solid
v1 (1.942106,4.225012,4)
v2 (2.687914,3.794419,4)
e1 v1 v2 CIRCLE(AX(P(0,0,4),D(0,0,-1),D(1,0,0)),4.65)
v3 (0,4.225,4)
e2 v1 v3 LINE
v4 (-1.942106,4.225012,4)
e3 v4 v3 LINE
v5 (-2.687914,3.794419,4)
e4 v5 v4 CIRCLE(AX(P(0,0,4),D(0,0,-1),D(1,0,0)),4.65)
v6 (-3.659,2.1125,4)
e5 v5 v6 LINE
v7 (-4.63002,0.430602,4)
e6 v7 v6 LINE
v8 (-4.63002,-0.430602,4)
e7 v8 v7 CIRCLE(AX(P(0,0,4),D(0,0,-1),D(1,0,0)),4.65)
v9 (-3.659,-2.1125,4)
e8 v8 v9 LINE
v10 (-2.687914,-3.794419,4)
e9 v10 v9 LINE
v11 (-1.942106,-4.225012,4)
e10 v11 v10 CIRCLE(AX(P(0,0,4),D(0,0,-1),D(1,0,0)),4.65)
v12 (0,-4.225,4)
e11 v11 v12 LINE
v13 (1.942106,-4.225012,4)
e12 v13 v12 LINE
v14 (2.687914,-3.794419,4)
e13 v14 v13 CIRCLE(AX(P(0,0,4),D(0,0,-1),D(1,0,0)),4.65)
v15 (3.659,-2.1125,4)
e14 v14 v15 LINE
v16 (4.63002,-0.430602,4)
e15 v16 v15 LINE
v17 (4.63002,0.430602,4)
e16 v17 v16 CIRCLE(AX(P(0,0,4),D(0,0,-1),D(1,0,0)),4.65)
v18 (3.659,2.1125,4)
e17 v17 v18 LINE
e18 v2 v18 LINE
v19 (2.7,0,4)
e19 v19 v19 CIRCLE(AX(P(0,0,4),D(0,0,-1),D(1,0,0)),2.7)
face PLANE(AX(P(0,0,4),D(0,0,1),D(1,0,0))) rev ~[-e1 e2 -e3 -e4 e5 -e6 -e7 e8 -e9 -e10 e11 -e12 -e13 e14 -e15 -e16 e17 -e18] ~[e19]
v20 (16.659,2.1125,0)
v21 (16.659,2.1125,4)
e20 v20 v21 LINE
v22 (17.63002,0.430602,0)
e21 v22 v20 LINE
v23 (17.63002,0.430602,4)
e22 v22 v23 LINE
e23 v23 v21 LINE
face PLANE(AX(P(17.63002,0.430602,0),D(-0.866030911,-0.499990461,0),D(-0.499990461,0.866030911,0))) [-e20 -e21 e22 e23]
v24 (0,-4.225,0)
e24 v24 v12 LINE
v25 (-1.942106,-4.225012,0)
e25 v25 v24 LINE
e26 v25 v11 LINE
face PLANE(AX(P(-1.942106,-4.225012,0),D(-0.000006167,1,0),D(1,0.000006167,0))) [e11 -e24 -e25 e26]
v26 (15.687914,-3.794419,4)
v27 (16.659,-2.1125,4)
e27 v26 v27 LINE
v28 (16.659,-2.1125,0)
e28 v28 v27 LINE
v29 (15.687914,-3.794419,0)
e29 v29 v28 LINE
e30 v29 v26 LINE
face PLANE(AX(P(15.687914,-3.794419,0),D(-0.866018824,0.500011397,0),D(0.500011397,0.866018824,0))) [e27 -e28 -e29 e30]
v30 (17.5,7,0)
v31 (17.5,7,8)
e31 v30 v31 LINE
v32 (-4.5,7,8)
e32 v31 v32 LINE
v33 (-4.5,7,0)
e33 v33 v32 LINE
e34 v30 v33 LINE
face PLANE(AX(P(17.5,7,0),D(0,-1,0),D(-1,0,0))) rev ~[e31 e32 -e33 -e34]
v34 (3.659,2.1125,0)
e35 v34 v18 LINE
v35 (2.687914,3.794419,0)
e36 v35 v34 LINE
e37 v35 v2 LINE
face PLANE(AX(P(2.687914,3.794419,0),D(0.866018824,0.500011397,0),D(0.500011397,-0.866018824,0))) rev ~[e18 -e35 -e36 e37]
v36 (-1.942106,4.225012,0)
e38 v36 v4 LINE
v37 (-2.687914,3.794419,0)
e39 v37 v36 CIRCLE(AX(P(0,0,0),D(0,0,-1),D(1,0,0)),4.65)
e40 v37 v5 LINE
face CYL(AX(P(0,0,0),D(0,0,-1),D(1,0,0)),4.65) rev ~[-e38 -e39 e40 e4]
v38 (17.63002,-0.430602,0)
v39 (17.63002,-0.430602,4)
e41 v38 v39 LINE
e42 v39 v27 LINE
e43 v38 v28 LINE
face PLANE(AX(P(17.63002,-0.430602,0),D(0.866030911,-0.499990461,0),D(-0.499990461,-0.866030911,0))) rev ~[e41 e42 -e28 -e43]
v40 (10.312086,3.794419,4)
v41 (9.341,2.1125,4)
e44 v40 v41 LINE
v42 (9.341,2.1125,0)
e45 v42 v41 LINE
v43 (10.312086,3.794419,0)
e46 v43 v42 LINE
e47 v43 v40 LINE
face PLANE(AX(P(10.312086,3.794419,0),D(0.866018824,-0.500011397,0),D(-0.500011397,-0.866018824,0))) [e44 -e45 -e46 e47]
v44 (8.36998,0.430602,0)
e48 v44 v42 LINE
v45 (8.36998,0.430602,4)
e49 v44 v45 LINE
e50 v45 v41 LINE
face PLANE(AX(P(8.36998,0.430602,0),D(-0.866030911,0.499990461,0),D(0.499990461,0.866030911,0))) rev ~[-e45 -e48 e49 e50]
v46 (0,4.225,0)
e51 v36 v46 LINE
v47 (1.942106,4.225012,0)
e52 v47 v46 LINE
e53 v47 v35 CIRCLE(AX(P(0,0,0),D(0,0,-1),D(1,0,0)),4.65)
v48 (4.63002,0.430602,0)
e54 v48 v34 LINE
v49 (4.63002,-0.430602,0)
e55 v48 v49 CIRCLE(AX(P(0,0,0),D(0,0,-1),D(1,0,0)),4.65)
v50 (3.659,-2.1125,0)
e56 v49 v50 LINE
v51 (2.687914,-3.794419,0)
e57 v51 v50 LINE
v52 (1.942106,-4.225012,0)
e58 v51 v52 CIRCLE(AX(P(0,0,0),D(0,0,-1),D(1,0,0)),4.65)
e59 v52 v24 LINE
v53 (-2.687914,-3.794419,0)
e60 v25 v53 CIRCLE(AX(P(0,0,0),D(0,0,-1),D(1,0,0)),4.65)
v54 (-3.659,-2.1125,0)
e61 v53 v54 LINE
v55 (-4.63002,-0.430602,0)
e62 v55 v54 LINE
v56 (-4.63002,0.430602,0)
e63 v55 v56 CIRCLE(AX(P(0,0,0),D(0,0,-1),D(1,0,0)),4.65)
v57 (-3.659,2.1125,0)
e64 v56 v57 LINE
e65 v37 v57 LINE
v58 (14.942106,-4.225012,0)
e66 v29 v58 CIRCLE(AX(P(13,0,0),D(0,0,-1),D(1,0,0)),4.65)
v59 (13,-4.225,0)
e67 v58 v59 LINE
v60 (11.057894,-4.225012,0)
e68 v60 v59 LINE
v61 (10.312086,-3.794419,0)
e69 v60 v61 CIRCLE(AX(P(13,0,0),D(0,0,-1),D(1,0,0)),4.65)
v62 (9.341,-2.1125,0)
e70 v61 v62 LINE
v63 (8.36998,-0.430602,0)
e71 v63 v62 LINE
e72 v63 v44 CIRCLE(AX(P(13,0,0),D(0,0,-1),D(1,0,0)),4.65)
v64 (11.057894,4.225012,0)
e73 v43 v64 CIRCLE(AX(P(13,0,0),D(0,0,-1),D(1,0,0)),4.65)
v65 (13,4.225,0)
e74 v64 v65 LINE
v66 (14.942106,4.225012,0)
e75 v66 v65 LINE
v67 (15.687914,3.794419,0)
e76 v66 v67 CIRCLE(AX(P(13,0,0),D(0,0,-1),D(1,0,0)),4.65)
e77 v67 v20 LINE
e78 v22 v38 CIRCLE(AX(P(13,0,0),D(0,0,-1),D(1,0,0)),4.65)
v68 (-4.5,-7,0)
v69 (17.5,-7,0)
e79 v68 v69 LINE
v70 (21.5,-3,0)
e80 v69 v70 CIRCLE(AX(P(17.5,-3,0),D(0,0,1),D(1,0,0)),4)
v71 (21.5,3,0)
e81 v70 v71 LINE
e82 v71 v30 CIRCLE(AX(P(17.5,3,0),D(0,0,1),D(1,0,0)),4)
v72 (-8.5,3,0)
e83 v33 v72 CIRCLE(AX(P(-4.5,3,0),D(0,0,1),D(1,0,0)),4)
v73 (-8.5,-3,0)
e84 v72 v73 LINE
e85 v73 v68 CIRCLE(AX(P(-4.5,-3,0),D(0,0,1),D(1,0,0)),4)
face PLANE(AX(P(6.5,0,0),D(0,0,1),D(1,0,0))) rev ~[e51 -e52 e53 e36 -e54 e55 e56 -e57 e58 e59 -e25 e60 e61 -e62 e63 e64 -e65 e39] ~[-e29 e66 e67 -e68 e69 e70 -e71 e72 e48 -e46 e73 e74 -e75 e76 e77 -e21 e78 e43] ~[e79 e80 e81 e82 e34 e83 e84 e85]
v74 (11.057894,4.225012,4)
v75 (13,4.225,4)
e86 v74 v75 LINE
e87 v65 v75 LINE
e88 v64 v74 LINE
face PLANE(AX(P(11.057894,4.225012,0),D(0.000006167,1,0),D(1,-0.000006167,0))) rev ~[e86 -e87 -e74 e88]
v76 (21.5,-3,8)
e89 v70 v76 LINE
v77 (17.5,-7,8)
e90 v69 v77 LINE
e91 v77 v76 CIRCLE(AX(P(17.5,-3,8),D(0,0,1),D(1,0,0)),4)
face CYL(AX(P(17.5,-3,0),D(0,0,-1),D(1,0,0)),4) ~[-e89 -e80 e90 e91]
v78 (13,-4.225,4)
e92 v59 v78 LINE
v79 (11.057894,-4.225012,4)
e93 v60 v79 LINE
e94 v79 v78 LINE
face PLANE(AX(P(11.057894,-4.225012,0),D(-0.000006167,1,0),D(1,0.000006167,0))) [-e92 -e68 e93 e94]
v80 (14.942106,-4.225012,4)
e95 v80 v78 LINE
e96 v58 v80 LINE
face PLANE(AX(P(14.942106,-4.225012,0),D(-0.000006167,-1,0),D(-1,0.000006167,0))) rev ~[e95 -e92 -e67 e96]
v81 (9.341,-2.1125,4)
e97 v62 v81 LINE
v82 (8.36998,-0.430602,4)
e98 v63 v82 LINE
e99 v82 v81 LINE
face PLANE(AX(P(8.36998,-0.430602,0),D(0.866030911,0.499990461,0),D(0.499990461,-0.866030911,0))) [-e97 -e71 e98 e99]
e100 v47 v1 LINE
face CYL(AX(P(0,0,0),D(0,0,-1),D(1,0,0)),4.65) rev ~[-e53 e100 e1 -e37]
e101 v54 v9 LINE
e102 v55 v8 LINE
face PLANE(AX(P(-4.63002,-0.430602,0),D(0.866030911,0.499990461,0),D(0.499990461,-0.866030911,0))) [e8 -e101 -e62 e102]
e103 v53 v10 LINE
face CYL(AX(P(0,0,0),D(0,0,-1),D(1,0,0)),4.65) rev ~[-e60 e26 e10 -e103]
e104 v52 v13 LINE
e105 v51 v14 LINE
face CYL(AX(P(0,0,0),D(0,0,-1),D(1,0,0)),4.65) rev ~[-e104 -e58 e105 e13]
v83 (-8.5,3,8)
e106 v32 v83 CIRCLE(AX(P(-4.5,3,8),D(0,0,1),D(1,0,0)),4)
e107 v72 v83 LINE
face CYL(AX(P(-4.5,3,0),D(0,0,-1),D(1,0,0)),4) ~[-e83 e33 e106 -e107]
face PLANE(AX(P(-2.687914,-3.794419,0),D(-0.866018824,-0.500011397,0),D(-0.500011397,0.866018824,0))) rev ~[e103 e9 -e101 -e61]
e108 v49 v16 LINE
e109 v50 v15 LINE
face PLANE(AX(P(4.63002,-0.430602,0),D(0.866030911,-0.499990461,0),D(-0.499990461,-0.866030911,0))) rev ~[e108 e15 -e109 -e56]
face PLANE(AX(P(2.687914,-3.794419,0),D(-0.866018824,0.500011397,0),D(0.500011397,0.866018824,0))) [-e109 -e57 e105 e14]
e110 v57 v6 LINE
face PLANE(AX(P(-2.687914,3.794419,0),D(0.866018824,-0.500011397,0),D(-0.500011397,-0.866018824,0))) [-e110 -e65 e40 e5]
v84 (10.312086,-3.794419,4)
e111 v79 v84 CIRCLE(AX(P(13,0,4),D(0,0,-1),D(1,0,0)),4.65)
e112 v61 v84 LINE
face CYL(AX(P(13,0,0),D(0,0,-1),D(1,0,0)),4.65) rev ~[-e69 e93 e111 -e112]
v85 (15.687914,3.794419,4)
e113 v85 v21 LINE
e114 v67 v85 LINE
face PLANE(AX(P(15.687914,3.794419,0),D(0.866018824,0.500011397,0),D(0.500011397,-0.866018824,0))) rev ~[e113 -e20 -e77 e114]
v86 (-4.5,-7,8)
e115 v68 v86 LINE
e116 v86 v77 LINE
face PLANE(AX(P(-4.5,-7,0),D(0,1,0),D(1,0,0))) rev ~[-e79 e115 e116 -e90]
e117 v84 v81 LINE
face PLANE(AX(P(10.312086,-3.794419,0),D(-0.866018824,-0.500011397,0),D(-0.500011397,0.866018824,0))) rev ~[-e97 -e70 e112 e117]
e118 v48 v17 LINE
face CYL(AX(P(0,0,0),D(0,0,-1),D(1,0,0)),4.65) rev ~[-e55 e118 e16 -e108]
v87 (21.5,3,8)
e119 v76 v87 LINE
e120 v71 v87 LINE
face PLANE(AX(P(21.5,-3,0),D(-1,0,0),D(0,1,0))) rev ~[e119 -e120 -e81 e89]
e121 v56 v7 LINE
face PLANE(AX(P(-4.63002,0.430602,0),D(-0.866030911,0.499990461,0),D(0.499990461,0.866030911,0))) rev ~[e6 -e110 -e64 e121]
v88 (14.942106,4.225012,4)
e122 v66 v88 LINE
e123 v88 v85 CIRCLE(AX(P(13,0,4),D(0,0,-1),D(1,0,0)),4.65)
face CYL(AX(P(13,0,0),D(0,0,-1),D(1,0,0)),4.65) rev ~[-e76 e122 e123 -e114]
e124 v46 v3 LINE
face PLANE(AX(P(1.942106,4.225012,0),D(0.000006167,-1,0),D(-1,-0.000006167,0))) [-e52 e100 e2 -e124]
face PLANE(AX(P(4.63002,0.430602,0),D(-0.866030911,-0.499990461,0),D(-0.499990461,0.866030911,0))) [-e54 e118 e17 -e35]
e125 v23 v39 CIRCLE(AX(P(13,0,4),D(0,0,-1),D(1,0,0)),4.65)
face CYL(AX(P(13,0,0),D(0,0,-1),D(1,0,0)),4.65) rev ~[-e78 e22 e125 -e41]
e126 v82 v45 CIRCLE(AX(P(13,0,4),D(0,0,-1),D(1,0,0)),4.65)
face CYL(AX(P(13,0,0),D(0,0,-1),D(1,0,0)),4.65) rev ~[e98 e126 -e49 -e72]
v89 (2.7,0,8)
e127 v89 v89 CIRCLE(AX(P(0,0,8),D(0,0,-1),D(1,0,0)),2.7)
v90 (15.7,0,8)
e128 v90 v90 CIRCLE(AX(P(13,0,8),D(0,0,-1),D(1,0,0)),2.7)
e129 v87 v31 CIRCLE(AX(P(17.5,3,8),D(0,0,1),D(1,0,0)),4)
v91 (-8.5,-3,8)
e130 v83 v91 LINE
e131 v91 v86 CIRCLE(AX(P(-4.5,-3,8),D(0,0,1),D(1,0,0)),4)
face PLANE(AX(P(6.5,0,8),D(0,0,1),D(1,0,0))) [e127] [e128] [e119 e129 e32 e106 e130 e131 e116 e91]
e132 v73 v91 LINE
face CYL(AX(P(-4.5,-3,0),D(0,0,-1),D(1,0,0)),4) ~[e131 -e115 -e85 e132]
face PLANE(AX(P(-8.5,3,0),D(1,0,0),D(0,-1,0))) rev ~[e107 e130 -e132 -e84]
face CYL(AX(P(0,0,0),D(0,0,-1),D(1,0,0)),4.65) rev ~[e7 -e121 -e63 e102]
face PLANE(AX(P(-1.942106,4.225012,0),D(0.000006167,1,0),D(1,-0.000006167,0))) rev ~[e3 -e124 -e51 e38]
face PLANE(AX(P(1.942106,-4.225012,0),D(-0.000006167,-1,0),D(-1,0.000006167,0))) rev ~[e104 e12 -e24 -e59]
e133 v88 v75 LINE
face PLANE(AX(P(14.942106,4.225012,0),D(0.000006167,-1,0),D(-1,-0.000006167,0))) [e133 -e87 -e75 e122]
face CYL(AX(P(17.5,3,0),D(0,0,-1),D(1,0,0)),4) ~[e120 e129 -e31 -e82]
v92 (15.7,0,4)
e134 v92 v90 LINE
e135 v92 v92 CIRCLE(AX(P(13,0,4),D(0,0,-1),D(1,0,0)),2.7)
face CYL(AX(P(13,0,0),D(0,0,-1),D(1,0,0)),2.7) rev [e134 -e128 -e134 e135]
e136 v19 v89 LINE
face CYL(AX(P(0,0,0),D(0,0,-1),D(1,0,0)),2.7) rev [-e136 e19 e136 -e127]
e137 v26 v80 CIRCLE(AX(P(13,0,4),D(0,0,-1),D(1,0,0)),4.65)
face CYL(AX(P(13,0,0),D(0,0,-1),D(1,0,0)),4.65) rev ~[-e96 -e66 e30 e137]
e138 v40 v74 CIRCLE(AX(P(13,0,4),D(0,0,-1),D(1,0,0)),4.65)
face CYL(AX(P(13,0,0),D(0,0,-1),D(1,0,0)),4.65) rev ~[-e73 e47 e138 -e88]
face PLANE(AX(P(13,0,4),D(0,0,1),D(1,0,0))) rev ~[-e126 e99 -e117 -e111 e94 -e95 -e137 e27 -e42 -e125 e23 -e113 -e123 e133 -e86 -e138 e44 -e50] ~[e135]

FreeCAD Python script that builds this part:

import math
import FreeCAD as App
import Part
import Sketcher

V = App.Vector
Q = App.Units.Quantity

doc = App.newDocument("Part")
body = doc.addObject("PartDesign::Body", "Body")

# Sketch on XY plane
sketch1 = body.newObject("Sketcher::SketchObject", "Sketch")
sketch1.AttachmentSupport = (doc.getObject("XY_Plane"), [""])
sketch1.MapMode = "FlatFace"
sketch1.addGeometry([
    Part.ArcOfCircle(Part.Circle(V(-4.5, -3, 0), V(0, 0, 1), 4), math.radians(180), math.radians(270)),  # 0
    Part.LineSegment(V(-4.5, -7, 0), V(17.5, -7, 0)),  # 1
    Part.ArcOfCircle(Part.Circle(V(17.5, -3, 0), V(0, 0, 1), 4), math.radians(-90), math.radians(0)),  # 2
    Part.LineSegment(V(21.5, -3, 0), V(21.5, 3, 0)),  # 3
    Part.ArcOfCircle(Part.Circle(V(17.5, 3, 0), V(0, 0, 1), 4), math.radians(0), math.radians(90)),  # 4
    Part.LineSegment(V(17.5, 7, 0), V(-4.5, 7, 0)),  # 5
    Part.ArcOfCircle(Part.Circle(V(-4.5, 3, 0), V(0, 0, 1), 4), math.radians(90), math.radians(180)),  # 6
    Part.LineSegment(V(-8.5, 3, 0), V(-8.5, -3, 0)),  # 7
], False)
sketch1.addConstraint([
    Sketcher.Constraint("Tangent", 0, 2, 1, 1),
    Sketcher.Constraint("Tangent", 1, 2, 2, 1),
    Sketcher.Constraint("Tangent", 2, 2, 3, 1),
    Sketcher.Constraint("Tangent", 3, 2, 4, 1),
    Sketcher.Constraint("Tangent", 4, 2, 5, 1),
    Sketcher.Constraint("Tangent", 5, 2, 6, 1),
    Sketcher.Constraint("Tangent", 6, 2, 7, 1),
    Sketcher.Constraint("Tangent", 7, 2, 0, 1),
    Sketcher.Constraint("Horizontal", 1),
    Sketcher.Constraint("Vertical", 3),
    Sketcher.Constraint("Horizontal", 5),
    Sketcher.Constraint("Vertical", 7),
    Sketcher.Constraint("Equal", 0, 2),
    Sketcher.Constraint("Equal", 2, 4),
    Sketcher.Constraint("Equal", 4, 6),
    Sketcher.Constraint("Radius", 0, Q("4 mm")),
    Sketcher.Constraint("DistanceX", 1, 1, 1, 2, Q("22 mm")),
    Sketcher.Constraint("DistanceY", 3, 1, 3, 2, Q("6 mm")),
    Sketcher.Constraint("DistanceY", 0, 3, -1, 1, Q("3 mm")),
    Sketcher.Constraint("DistanceX", 0, 3, -1, 1, Q("4.5 mm")),
])
pad1 = body.newObject("PartDesign::Pad", "Pad")
pad1.Profile = sketch1
pad1.Length = 8

# Sketch on XY plane
sketch2 = body.newObject("Sketcher::SketchObject", "Sketch001")
sketch2.AttachmentSupport = (doc.getObject("XY_Plane"), [""])
sketch2.MapMode = "FlatFace"
sketch2.addGeometry([
    Part.ArcOfCircle(Part.Circle(V(-0.000573, -0.001108, 0), V(0, 0, 1), 4.64874), math.radians(-125.315357), math.radians(-114.686046)),  # 0
    Part.LineSegment(V(-1.9421, -4.225, 0), V(1.9421, -4.225, 0)),  # 1
    Part.ArcOfCircle(Part.Circle(V(-0.000674, 0.001051, 0), V(0, 0, 1), 4.651223), math.radians(-65.311109), math.radians(-54.687488)),  # 2
    Part.LineSegment(V(2.6879, -3.7944, 0), V(3.659, -2.1125, 0)),  # 3
    Part.LineSegment(V(3.659, -2.1125, 0), V(4.63, -0.4306, 0)),  # 4
    Part.ArcOfCircle(Part.Circle(V(0, 0, 0), V(0, 0, 1), 4.64998), math.radians(-5.313347), math.radians(5.313347)),  # 5
    Part.LineSegment(V(4.63, 0.4306, 0), V(3.659, 2.1125, 0)),  # 6
    Part.LineSegment(V(3.659, 2.1125, 0), V(2.6879, 3.7944, 0)),  # 7
    Part.ArcOfCircle(Part.Circle(V(0.000573, 0.001108, 0), V(0, 0, 1), 4.64874), math.radians(54.684643), math.radians(65.313954)),  # 8
    Part.LineSegment(V(1.9421, 4.225, 0), V(-1.9421, 4.225, 0)),  # 9
    Part.ArcOfCircle(Part.Circle(V(0.000674, -0.001051, 0), V(0, 0, 1), 4.651223), math.radians(114.688891), math.radians(125.312512)),  # 10
    Part.LineSegment(V(-2.6879, 3.7944, 0), V(-3.659, 2.1125, 0)),  # 11
    Part.LineSegment(V(-3.659, 2.1125, 0), V(-4.63, 0.4306, 0)),  # 12
    Part.ArcOfCircle(Part.Circle(V(0, 0, 0), V(0, 0, 1), 4.64998), math.radians(174.686653), math.radians(185.313347)),  # 13
    Part.LineSegment(V(-4.63, -0.4306, 0), V(-3.659, -2.1125, 0)),  # 14
    Part.LineSegment(V(-3.659, -2.1125, 0), V(-2.6879, -3.7944, 0)),  # 15
    Part.ArcOfCircle(Part.Circle(V(12.999427, -0.001108, 0), V(0, 0, 1), 4.64874), math.radians(-125.315357), math.radians(-114.686046)),  # 16
    Part.LineSegment(V(11.0579, -4.225, 0), V(14.9421, -4.225, 0)),  # 17
    Part.ArcOfCircle(Part.Circle(V(12.999326, 0.001051, 0), V(0, 0, 1), 4.651223), math.radians(-65.311109), math.radians(-54.687488)),  # 18
    Part.LineSegment(V(15.6879, -3.7944, 0), V(16.659, -2.1125, 0)),  # 19
    Part.LineSegment(V(16.659, -2.1125, 0), V(17.63, -0.4306, 0)),  # 20
    Part.ArcOfCircle(Part.Circle(V(13, 0, 0), V(0, 0, 1), 4.64998), math.radians(-5.313347), math.radians(5.313347)),  # 21
    Part.LineSegment(V(17.63, 0.4306, 0), V(16.659, 2.1125, 0)),  # 22
    Part.LineSegment(V(16.659, 2.1125, 0), V(15.6879, 3.7944, 0)),  # 23
    Part.ArcOfCircle(Part.Circle(V(13.000573, 0.001108, 0), V(0, 0, 1), 4.64874), math.radians(54.684643), math.radians(65.313954)),  # 24
    Part.LineSegment(V(14.9421, 4.225, 0), V(11.0579, 4.225, 0)),  # 25
    Part.ArcOfCircle(Part.Circle(V(13.000674, -0.001051, 0), V(0, 0, 1), 4.651223), math.radians(114.688891), math.radians(125.312512)),  # 26
    Part.LineSegment(V(10.3121, 3.7944, 0), V(9.341, 2.1125, 0)),  # 27
    Part.LineSegment(V(9.341, 2.1125, 0), V(8.37, 0.4306, 0)),  # 28
    Part.ArcOfCircle(Part.Circle(V(13, 0, 0), V(0, 0, 1), 4.64998), math.radians(174.686653), math.radians(185.313347)),  # 29
    Part.LineSegment(V(8.37, -0.4306, 0), V(9.341, -2.1125, 0)),  # 30
    Part.LineSegment(V(9.341, -2.1125, 0), V(10.3121, -3.7944, 0)),  # 31
], False)
sketch2.addConstraint([
    Sketcher.Constraint("Coincident", 0, 2, 1, 1),
    Sketcher.Constraint("Coincident", 1, 2, 2, 1),
    Sketcher.Constraint("Coincident", 2, 2, 3, 1),
    Sketcher.Constraint("Coincident", 3, 2, 4, 1),
    Sketcher.Constraint("Coincident", 4, 2, 5, 1),
    Sketcher.Constraint("Coincident", 5, 2, 6, 1),
    Sketcher.Constraint("Coincident", 6, 2, 7, 1),
    Sketcher.Constraint("Coincident", 7, 2, 8, 1),
    Sketcher.Constraint("Coincident", 8, 2, 9, 1),
    Sketcher.Constraint("Coincident", 9, 2, 10, 1),
    Sketcher.Constraint("Coincident", 10, 2, 11, 1),
    Sketcher.Constraint("Coincident", 11, 2, 12, 1),
    Sketcher.Constraint("Coincident", 12, 2, 13, 1),
    Sketcher.Constraint("Coincident", 13, 2, 14, 1),
    Sketcher.Constraint("Coincident", 14, 2, 15, 1),
    Sketcher.Constraint("Coincident", 15, 2, 0, 1),
    Sketcher.Constraint("Coincident", 16, 2, 17, 1),
    Sketcher.Constraint("Coincident", 17, 2, 18, 1),
    Sketcher.Constraint("Coincident", 18, 2, 19, 1),
    Sketcher.Constraint("Coincident", 19, 2, 20, 1),
    Sketcher.Constraint("Coincident", 20, 2, 21, 1),
    Sketcher.Constraint("Coincident", 21, 2, 22, 1),
    Sketcher.Constraint("Coincident", 22, 2, 23, 1),
    Sketcher.Constraint("Coincident", 23, 2, 24, 1),
    Sketcher.Constraint("Coincident", 24, 2, 25, 1),
    Sketcher.Constraint("Coincident", 25, 2, 26, 1),
    Sketcher.Constraint("Coincident", 26, 2, 27, 1),
    Sketcher.Constraint("Coincident", 27, 2, 28, 1),
    Sketcher.Constraint("Coincident", 28, 2, 29, 1),
    Sketcher.Constraint("Coincident", 29, 2, 30, 1),
    Sketcher.Constraint("Coincident", 30, 2, 31, 1),
    Sketcher.Constraint("Coincident", 31, 2, 16, 1),
    Sketcher.Constraint("Horizontal", 1),
    Sketcher.Constraint("Horizontal", 9),
    Sketcher.Constraint("Horizontal", 17),
    Sketcher.Constraint("Horizontal", 25),
    Sketcher.Constraint("Coincident", 5, 3, -1, 1),
    Sketcher.Constraint("Coincident", 13, 3, -1, 1),
    Sketcher.Constraint("Coincident", 29, 3, 21, 3),
    Sketcher.Constraint("Equal", 0, 8),
    Sketcher.Constraint("Equal", 2, 10),
    Sketcher.Constraint("Equal", 5, 13),
    Sketcher.Constraint("Equal", 8, 16),
    Sketcher.Constraint("Equal", 10, 18),
    Sketcher.Constraint("Equal", 13, 21),
    Sketcher.Constraint("Equal", 16, 24),
    Sketcher.Constraint("Equal", 18, 26),
    Sketcher.Constraint("Equal", 21, 29),
    Sketcher.Constraint("Symmetric", 0, 3, 8, 3, -1, 1),
    Sketcher.Constraint("Symmetric", 2, 3, 10, 3, -1, 1),
    Sketcher.Constraint("Symmetric", 3, 2, 11, 2, -1, 1),
    Sketcher.Constraint("Symmetric", 6, 2, 14, 2, -1, 1),
    Sketcher.Constraint("Symmetric", 2, 3, 8, 3, -2),
    Sketcher.Constraint("Symmetric", 7, 2, 10, 2, -2),
    Sketcher.Constraint("Symmetric", 6, 2, 11, 2, -2),
    Sketcher.Constraint("Symmetric", 16, 3, 18, 3, -1),
    Sketcher.Constraint("Symmetric", 24, 3, 26, 3, -1),
    Sketcher.Constraint("Symmetric", 1, 2, 8, 2, -1),
    Sketcher.Constraint("Symmetric", 20, 2, 21, 2, -1),
    Sketcher.Constraint("Symmetric", 19, 2, 22, 2, -1),
    Sketcher.Constraint("Symmetric", 18, 2, 23, 2, -1),
    Sketcher.Constraint("Symmetric", 17, 2, 24, 2, -1),
    Sketcher.Constraint("Symmetric", 27, 2, 30, 2, -1),
    Sketcher.Constraint("Parallel", 3, 4),
    Sketcher.Constraint("Parallel", 6, 7),
    Sketcher.Constraint("Parallel", 4, 11),
    Sketcher.Constraint("Parallel", 11, 12),
    Sketcher.Constraint("Parallel", 7, 14),
    Sketcher.Constraint("Parallel", 14, 15),
    Sketcher.Constraint("Parallel", 12, 19),
    Sketcher.Constraint("Parallel", 19, 20),
    Sketcher.Constraint("Parallel", 20, 27),
    Sketcher.Constraint("Parallel", 27, 28),
    Sketcher.Constraint("Parallel", 23, 30),
    Sketcher.Constraint("Parallel", 30, 31),
    Sketcher.Constraint("Horizontal", 10, 3, 16, 3),
    Sketcher.Constraint("Horizontal", 1, 2, 16, 2),
    Sketcher.Constraint("Horizontal", 15, 2, 18, 2),
    Sketcher.Constraint("Horizontal", 14, 2, 19, 2),
    Sketcher.Constraint("Horizontal", 13, 2, 20, 2),
    Sketcher.Constraint("Horizontal", 23, 2, 26, 2),
    Sketcher.Constraint("Horizontal", 22, 2, 27, 2),
    Sketcher.Constraint("Equal", 3, 4),
    Sketcher.Constraint("Angle", 4, Q("60.0012 deg")),
    Sketcher.Constraint("Radius", 5, Q("4.65 mm")),
    Sketcher.Constraint("DistanceX", -1, 1, 21, 3, Q("13 mm")),
    Sketcher.Constraint("Radius", 0, Q("4.6487 mm")),
    Sketcher.Constraint("Radius", 2, Q("4.6512 mm")),
    Sketcher.Constraint("DistanceX", -1, 1, 4, 2, Q("4.63 mm")),
    Sketcher.Constraint("DistanceX", 9, 2, 7, 2, Q("4.63 mm")),
])
pocket1 = body.newObject("PartDesign::Pocket", "Pocket")
pocket1.Profile = sketch2
pocket1.Length = 4
pocket1.Reversed = True

# Sketch on XY plane
sketch3 = body.newObject("Sketcher::SketchObject", "Sketch002")
sketch3.AttachmentSupport = (doc.getObject("XY_Plane"), [""])
sketch3.MapMode = "FlatFace"
sketch3.addGeometry([
    Part.Circle(V(0, 0, 0), V(0, 0, 1), 2.7),
    Part.Circle(V(13, 0, 0), V(0, 0, 1), 2.7),
], False)
sketch3.addConstraint([
    Sketcher.Constraint("Coincident", 0, 3, -1, 1),
    Sketcher.Constraint("Equal", 0, 1),
    Sketcher.Constraint("PointOnObject", 1, 3, -1),
    Sketcher.Constraint("Diameter", 0, Q("5.4 mm")),
    Sketcher.Constraint("DistanceX", -1, 1, 1, 3, Q("13 mm")),
])
pocket2 = body.newObject("PartDesign::Pocket", "Pocket001")
pocket2.Profile = sketch3
pocket2.Type = "ThroughAll"
pocket2.Reversed = True

doc.recompute()
